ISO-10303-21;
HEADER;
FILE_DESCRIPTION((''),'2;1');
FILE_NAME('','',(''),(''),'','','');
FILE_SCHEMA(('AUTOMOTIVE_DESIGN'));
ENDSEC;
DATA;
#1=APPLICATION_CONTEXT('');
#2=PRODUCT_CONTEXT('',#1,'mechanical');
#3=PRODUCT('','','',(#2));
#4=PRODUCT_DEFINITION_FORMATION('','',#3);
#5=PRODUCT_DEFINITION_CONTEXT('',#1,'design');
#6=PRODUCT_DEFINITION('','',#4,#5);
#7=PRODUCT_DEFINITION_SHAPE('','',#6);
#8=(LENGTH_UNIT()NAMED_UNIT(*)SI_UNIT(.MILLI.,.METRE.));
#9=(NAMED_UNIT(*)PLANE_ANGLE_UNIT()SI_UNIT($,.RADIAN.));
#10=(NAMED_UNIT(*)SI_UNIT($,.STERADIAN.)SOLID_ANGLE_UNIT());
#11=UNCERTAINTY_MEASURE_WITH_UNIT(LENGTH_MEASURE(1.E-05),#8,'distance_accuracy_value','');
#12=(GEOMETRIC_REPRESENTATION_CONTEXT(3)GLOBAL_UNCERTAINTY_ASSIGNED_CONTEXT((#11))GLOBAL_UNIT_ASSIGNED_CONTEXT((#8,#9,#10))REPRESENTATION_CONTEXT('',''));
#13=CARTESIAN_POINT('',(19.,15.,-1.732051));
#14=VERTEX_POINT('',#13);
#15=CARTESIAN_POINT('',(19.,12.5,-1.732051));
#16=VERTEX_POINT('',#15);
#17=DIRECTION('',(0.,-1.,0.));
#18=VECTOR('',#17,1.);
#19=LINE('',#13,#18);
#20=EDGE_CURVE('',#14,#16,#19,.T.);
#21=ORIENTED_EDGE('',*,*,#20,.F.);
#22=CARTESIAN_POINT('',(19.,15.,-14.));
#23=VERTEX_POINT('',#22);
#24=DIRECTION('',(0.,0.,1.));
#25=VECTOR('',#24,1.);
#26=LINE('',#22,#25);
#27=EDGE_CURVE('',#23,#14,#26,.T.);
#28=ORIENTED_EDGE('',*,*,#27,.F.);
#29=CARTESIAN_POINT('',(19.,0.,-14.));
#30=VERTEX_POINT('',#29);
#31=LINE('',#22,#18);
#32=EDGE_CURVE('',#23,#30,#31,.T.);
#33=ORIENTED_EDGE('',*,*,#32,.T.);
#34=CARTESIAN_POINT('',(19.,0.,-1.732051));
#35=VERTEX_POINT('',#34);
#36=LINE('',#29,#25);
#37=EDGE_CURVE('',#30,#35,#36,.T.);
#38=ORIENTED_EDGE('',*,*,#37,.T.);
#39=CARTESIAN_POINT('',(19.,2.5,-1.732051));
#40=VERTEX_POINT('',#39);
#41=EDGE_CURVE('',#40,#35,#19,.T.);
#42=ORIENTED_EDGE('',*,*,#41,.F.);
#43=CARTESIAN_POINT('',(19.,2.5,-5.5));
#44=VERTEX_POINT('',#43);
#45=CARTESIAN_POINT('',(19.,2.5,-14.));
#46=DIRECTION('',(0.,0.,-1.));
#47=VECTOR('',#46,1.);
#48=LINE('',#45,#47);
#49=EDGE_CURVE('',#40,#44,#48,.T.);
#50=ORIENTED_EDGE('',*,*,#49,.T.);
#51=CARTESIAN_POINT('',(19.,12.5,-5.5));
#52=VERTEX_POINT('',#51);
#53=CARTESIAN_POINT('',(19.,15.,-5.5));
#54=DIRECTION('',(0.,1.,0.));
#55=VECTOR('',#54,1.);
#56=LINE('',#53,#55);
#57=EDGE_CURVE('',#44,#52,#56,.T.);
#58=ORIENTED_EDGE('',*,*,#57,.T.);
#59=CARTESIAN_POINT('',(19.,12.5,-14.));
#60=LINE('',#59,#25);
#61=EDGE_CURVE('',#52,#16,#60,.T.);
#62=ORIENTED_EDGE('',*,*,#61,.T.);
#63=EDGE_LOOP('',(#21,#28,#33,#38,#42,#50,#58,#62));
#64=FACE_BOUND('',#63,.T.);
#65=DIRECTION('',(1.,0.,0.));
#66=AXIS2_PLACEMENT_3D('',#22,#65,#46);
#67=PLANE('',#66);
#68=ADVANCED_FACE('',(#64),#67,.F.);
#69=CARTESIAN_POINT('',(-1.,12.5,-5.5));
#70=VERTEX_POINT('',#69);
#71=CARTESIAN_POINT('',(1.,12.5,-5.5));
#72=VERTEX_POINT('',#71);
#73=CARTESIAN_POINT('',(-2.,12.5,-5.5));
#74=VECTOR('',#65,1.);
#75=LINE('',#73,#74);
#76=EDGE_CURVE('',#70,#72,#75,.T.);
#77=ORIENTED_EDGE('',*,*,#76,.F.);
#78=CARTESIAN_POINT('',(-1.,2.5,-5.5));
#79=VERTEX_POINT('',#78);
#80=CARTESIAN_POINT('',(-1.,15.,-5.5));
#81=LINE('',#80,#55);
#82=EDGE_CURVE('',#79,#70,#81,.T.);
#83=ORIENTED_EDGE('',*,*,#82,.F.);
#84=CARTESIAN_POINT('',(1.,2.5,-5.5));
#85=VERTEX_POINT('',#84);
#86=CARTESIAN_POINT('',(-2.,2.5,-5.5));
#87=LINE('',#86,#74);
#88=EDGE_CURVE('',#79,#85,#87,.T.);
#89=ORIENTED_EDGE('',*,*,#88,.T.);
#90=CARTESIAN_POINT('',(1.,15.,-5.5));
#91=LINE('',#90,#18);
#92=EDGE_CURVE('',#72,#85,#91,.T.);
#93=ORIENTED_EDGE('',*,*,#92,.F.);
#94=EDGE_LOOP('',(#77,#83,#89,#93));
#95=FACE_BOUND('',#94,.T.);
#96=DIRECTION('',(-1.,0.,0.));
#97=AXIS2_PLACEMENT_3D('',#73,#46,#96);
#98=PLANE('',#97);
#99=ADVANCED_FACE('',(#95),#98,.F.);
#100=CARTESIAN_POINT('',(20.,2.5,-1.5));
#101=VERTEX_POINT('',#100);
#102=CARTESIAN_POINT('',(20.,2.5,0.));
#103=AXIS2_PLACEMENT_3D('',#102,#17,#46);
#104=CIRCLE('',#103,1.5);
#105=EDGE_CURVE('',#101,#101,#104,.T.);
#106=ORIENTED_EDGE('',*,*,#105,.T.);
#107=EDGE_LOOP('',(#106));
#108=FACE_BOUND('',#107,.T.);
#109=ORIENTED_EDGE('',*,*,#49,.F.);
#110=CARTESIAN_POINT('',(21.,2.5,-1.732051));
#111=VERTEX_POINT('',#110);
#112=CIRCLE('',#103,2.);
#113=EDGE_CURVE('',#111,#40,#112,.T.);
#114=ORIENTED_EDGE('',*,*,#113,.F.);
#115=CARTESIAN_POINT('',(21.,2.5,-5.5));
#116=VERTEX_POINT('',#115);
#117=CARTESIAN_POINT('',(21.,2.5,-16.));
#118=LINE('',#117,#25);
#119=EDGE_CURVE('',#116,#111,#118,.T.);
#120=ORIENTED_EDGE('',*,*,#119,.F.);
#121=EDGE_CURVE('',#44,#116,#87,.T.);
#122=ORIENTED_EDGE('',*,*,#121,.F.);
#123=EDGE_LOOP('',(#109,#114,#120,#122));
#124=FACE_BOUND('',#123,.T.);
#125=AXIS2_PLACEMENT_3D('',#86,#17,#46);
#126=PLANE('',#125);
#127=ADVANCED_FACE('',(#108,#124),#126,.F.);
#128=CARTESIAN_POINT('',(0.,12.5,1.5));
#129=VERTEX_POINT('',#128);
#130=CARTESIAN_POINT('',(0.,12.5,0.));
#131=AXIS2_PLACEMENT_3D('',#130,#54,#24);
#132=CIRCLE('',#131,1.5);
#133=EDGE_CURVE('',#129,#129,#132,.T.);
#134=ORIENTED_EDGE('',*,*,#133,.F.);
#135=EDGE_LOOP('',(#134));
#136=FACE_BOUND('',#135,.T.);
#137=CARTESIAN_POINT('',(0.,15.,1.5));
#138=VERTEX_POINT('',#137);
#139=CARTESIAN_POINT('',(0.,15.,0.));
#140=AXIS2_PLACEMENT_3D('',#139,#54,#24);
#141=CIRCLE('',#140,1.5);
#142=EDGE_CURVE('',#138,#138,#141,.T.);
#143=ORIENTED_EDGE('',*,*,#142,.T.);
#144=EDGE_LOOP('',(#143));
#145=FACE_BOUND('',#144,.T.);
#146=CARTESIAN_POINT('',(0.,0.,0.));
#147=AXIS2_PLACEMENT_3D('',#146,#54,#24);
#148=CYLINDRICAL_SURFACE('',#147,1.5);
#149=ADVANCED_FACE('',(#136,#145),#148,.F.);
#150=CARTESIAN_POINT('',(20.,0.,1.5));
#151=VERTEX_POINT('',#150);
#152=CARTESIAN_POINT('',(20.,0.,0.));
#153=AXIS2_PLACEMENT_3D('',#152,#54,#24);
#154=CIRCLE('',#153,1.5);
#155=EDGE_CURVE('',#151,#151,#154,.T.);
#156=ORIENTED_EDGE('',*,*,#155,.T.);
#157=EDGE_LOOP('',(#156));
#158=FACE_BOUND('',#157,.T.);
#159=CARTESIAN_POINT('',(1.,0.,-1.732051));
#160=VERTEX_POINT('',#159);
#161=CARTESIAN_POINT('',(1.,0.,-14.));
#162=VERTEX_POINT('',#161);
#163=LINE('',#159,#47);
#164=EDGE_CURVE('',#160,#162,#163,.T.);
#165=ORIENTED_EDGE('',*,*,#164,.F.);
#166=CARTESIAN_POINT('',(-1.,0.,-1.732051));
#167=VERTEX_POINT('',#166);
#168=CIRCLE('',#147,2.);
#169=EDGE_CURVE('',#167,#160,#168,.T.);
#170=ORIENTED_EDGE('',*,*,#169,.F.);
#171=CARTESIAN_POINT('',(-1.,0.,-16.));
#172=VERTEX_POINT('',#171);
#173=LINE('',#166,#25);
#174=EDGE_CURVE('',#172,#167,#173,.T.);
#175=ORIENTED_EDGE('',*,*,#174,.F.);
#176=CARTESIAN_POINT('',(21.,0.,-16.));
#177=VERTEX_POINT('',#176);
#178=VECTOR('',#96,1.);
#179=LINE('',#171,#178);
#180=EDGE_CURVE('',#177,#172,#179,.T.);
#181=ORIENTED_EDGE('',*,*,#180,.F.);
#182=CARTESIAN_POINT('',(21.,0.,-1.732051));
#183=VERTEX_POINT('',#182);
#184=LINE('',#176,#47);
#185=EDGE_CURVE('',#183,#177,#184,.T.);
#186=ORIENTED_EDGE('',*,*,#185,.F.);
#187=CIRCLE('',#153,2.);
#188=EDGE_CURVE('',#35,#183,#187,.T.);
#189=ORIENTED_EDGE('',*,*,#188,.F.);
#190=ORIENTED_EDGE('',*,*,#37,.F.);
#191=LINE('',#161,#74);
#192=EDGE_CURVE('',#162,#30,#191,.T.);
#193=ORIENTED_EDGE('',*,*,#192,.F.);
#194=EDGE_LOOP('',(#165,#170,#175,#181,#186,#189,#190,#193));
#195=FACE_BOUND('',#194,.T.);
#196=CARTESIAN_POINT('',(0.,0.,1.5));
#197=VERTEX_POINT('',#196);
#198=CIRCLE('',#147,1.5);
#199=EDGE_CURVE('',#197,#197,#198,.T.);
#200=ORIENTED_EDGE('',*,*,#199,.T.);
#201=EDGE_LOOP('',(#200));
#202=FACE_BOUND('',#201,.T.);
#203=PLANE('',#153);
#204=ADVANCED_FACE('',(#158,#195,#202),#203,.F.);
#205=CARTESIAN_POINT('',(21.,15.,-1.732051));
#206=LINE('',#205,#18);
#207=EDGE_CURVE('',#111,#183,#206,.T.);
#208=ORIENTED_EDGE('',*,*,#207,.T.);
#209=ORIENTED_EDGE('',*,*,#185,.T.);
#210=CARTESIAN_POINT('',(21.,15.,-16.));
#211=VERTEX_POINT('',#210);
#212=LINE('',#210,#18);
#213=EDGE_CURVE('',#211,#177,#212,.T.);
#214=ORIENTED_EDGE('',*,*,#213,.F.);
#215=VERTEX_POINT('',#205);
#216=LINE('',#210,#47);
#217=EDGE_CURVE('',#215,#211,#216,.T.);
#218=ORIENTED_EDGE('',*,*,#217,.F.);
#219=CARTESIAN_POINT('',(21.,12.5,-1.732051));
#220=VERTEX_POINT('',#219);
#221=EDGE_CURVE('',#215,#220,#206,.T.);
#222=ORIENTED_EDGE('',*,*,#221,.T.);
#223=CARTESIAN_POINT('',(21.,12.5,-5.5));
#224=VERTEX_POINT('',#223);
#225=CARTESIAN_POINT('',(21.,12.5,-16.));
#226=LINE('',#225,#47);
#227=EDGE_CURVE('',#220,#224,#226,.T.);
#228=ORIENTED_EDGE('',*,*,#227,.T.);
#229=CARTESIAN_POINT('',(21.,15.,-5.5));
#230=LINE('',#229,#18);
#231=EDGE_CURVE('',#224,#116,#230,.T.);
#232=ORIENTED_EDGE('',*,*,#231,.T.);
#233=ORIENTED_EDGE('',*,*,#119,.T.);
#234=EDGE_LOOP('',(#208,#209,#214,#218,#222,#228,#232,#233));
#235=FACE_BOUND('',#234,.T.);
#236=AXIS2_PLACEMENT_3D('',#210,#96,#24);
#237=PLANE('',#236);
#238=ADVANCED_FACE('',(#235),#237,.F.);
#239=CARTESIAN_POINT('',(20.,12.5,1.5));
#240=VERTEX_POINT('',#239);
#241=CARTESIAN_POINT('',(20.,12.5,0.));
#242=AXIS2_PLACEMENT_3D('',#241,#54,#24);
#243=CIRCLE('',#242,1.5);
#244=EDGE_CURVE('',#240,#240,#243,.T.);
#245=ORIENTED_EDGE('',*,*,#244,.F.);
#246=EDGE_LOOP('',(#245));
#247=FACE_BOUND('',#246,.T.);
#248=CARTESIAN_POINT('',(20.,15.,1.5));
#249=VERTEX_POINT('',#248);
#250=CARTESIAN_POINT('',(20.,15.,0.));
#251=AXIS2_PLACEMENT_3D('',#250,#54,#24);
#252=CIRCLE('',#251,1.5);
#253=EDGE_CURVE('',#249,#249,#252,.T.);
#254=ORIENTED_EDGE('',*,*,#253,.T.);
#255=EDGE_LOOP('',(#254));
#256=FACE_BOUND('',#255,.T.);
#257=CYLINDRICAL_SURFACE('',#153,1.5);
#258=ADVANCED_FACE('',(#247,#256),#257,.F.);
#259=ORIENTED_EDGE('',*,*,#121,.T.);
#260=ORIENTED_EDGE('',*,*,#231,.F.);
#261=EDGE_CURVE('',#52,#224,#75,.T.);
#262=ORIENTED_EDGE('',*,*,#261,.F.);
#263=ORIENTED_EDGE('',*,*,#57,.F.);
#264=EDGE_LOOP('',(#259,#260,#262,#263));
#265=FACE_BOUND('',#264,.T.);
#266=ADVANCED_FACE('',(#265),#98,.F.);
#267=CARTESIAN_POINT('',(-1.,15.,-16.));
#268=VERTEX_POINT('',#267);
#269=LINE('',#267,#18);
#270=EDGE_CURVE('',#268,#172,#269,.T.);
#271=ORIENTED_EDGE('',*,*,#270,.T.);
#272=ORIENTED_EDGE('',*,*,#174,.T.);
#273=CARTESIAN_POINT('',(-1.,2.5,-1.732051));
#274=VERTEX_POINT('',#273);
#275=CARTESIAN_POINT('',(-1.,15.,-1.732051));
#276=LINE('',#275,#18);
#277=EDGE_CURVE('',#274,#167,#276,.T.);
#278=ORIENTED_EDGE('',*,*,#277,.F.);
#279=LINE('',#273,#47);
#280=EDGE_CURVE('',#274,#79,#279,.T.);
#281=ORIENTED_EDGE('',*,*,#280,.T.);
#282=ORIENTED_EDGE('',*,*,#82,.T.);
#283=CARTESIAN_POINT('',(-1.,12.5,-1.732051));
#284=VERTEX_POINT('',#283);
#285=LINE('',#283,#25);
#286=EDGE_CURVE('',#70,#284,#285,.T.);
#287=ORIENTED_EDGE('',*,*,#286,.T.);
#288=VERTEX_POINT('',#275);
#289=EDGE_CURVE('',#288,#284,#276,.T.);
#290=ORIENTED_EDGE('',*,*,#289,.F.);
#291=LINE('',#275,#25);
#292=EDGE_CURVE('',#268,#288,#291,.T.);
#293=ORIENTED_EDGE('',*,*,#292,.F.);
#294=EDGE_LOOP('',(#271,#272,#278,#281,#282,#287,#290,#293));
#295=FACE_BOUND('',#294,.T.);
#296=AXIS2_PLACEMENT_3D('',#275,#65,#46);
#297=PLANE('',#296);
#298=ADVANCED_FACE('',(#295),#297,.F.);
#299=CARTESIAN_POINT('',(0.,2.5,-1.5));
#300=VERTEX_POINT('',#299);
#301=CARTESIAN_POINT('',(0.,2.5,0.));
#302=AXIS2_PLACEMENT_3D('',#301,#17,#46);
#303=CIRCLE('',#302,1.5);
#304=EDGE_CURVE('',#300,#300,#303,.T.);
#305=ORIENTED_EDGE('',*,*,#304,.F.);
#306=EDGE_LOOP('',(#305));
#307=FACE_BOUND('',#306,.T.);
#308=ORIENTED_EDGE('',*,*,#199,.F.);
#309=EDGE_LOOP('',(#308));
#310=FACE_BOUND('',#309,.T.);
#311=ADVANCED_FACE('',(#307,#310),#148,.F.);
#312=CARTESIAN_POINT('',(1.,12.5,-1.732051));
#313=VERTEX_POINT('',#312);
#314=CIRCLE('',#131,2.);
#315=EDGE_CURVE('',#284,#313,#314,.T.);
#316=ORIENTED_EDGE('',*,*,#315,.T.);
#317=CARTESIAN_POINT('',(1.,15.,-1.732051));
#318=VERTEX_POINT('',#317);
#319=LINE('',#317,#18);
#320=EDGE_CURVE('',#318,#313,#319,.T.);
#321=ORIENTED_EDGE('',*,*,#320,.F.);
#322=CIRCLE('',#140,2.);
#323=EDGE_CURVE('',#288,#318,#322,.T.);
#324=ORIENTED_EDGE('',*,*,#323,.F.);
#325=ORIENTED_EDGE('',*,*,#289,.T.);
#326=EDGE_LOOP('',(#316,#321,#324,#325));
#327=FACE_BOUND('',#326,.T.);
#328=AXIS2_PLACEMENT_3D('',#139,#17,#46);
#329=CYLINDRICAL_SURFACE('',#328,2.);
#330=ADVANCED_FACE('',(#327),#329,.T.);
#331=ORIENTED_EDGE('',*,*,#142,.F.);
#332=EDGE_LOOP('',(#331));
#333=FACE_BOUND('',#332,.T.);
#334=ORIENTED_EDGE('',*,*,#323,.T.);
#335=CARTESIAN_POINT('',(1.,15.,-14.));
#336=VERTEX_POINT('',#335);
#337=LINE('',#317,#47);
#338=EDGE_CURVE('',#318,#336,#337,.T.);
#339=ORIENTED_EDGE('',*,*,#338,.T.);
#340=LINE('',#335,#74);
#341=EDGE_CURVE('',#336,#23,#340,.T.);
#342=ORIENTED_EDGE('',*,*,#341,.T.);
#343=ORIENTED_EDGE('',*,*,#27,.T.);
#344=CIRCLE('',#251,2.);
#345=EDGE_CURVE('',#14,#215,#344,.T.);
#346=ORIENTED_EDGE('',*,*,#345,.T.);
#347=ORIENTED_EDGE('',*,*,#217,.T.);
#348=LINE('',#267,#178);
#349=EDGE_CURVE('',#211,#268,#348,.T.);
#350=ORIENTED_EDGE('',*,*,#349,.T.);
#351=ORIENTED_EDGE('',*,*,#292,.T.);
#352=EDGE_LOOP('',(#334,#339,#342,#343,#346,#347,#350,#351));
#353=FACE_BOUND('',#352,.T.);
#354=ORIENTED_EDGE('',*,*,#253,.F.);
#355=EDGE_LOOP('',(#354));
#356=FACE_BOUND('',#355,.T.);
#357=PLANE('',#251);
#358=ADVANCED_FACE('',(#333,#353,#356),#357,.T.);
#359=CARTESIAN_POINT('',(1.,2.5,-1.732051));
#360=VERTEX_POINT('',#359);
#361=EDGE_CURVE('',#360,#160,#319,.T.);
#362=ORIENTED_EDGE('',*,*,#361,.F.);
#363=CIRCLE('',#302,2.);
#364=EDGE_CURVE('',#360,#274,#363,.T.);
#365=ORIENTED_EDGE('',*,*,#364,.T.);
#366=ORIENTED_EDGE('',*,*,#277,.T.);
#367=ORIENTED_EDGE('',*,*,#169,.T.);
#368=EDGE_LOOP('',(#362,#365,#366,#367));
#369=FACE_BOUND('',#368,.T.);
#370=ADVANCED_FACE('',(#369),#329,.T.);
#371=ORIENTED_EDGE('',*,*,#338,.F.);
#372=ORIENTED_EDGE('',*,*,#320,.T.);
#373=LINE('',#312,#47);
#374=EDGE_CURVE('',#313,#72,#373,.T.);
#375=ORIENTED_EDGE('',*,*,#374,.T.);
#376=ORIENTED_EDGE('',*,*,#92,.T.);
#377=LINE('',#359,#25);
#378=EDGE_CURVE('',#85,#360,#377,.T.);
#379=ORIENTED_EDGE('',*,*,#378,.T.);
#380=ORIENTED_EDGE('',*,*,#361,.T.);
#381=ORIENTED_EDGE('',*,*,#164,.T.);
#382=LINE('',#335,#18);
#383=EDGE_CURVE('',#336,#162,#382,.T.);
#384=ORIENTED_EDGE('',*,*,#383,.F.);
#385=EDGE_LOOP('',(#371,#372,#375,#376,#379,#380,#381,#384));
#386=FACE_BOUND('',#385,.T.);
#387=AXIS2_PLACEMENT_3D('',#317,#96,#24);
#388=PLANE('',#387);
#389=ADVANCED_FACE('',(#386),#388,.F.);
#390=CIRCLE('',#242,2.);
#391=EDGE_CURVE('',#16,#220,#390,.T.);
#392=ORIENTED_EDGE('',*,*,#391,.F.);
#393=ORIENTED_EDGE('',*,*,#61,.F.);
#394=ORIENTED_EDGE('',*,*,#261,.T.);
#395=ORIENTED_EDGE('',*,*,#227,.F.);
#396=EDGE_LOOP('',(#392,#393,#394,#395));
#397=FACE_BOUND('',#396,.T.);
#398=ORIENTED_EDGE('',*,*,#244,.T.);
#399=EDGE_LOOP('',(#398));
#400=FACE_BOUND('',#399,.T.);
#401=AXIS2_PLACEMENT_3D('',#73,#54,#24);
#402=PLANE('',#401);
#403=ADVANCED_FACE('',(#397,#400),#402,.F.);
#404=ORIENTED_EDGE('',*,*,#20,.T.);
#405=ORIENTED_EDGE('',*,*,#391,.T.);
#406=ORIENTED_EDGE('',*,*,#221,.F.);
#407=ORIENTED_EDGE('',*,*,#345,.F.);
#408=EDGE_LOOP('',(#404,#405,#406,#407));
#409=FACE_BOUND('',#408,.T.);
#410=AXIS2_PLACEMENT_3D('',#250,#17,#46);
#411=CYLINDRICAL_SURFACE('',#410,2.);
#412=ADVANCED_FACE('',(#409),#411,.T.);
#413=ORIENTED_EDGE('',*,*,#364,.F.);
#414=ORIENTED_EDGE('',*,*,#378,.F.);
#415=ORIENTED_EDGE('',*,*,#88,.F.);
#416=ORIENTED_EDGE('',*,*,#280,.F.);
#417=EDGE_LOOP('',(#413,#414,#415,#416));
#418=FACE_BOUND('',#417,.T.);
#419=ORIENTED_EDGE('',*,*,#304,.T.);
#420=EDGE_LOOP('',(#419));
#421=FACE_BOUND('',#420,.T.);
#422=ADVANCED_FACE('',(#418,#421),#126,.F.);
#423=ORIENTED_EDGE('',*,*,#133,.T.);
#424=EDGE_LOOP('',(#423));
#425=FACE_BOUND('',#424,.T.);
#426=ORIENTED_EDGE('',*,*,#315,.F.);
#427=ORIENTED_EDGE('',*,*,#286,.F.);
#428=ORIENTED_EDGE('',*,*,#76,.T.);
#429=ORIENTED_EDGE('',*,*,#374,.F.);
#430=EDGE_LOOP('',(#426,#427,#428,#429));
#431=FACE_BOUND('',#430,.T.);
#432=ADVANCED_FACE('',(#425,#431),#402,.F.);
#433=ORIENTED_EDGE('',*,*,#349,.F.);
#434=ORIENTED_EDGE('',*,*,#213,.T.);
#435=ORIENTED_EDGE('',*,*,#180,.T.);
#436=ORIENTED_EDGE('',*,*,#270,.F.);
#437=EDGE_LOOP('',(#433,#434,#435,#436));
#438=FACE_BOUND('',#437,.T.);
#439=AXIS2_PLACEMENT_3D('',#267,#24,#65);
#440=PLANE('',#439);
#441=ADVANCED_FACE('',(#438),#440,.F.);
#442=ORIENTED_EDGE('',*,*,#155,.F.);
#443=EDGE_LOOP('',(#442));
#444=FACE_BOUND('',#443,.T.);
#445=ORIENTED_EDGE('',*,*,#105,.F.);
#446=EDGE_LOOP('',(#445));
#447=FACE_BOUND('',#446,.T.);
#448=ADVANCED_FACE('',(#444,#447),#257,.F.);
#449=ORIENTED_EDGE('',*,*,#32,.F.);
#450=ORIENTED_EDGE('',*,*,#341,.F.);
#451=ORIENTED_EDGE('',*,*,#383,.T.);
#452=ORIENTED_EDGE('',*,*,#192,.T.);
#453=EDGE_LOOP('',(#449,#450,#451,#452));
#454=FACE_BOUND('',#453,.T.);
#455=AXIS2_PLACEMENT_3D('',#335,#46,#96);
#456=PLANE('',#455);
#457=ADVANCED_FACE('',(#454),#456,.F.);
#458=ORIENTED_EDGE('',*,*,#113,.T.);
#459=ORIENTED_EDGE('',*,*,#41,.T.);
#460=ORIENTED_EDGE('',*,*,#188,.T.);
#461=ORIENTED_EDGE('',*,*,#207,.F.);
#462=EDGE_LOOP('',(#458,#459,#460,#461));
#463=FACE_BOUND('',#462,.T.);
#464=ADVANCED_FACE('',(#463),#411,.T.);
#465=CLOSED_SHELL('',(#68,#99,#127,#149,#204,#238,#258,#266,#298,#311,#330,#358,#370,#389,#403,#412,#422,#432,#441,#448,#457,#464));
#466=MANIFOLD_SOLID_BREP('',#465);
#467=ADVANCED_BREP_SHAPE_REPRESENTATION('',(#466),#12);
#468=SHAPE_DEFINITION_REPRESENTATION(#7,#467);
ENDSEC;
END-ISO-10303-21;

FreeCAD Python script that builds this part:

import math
import FreeCAD as App
import Part
import Sketcher
from FreeCAD import Vector

doc = App.newDocument("Part")
body = doc.addObject("PartDesign::Body", "Body")

sketch1 = doc.addObject("Sketcher::SketchObject", "Sketch")
body.addObject(sketch1)
sketch1.AttachmentSupport = (doc.XZ_Plane, [""])
sketch1.MapMode = "FlatFace"
sketch1.addGeometry([
    Part.LineSegment(Vector(1, -1.7, 0), Vector(1, -14, 0)),
    Part.LineSegment(Vector(1, -14, 0), Vector(19, -14, 0)),
    Part.LineSegment(Vector(19, -14, 0), Vector(19, -1.7, 0)),
    Part.ArcOfCircle(Part.Circle(Vector(20, 0, 0), Vector(0, 0, 1), 2), math.radians(-60), math.radians(240)),
    Part.LineSegment(Vector(21, -1.7, 0), Vector(21, -16, 0)),
    Part.LineSegment(Vector(21, -16, 0), Vector(-1, -16, 0)),
    Part.LineSegment(Vector(-1, -16, 0), Vector(-1, -1.7, 0)),
    Part.ArcOfCircle(Part.Circle(Vector(0, 0, 0), Vector(0, 0, 1), 2), math.radians(-60), math.radians(240)),
], False)
sketch1.addConstraint([
    Sketcher.Constraint("Coincident", 0, 2, 1, 1),
    Sketcher.Constraint("Coincident", 1, 2, 2, 1),
    Sketcher.Constraint("Coincident", 2, 2, 3, 2),
    Sketcher.Constraint("Coincident", 3, 1, 4, 1),
    Sketcher.Constraint("Coincident", 4, 2, 5, 1),
    Sketcher.Constraint("Coincident", 5, 2, 6, 1),
    Sketcher.Constraint("Coincident", 6, 2, 7, 2),
    Sketcher.Constraint("Coincident", 7, 1, 0, 1),
    Sketcher.Constraint("Vertical", 0),
    Sketcher.Constraint("Horizontal", 1),
    Sketcher.Constraint("Vertical", 2),
    Sketcher.Constraint("Vertical", 4),
    Sketcher.Constraint("Horizontal", 5),
    Sketcher.Constraint("Vertical", 6),
    Sketcher.Constraint("Coincident", 7, 3, -1, 1),
    Sketcher.Constraint("Equal", 3, 7),
    Sketcher.Constraint("PointOnObject", 3, 3, -1),
    Sketcher.Constraint("Horizontal", 2, 2, 3, 1),
    Sketcher.Constraint("Horizontal", 3, 1, 6, 2),
    Sketcher.Constraint("Horizontal", 6, 2, 7, 1),
    Sketcher.Constraint("Radius", 3, 2.0),
    Sketcher.Constraint("DistanceX", 1, 1, 1, 2, 18.0),
    Sketcher.Constraint("DistanceX", 5, 2, 5, 1, 22.0),
    Sketcher.Constraint("DistanceY", 0, 2, -1, 1, 14.0),
    Sketcher.Constraint("DistanceY", 4, 2, -1, 1, 16.0),
])
pad1 = doc.addObject("PartDesign::Pad", "Pad")
body.addObject(pad1)
pad1.Profile = sketch1
pad1.Length = 15
pad1.Reversed = True

sketch2 = doc.addObject("Sketcher::SketchObject", "Sketch001")
body.addObject(sketch2)
sketch2.AttachmentSupport = (doc.YZ_Plane, [""])
sketch2.MapMode = "FlatFace"
sketch2.addGeometry([
    Part.LineSegment(Vector(12, 2, 0), Vector(2, 2, 0)),
    Part.LineSegment(Vector(2, 2, 0), Vector(2, -6, 0)),
    Part.LineSegment(Vector(2, -6, 0), Vector(12, -6, 0)),
    Part.LineSegment(Vector(12, -6, 0), Vector(12, 2, 0)),
], False)
sketch2.addConstraint([
    Sketcher.Constraint("Coincident", 0, 2, 1, 1),
    Sketcher.Constraint("Coincident", 1, 2, 2, 1),
    Sketcher.Constraint("Coincident", 2, 2, 3, 1),
    Sketcher.Constraint("Coincident", 3, 2, 0, 1),
    Sketcher.Constraint("Horizontal", 0),
    Sketcher.Constraint("Vertical", 1),
    Sketcher.Constraint("Horizontal", 2),
    Sketcher.Constraint("Vertical", 3),
    Sketcher.Constraint("DistanceX", 0, 2, 0, 1, 10.0),
    Sketcher.Constraint("DistanceY", 1, 2, 1, 1, 7.5),
    Sketcher.Constraint("DistanceY", -1, 1, 0, 2, 2.0),
    Sketcher.Constraint("DistanceX", -1, 1, 0, 2, 2.5),
])
pocket1 = doc.addObject("PartDesign::Pocket", "Pocket")
body.addObject(pocket1)
pocket1.Profile = sketch2
pocket1.Type = "ThroughAll"
pocket1.Midplane = True

sketch3 = doc.addObject("Sketcher::SketchObject", "Sketch002")
body.addObject(sketch3)
sketch3.AttachmentSupport = (doc.XZ_Plane, [""])
sketch3.MapMode = "FlatFace"
sketch3.AttachmentOffset = App.Placement(Vector(0, 0, -15), App.Rotation())
sketch3.addGeometry([
    Part.Circle(Vector(0, 0, 0), Vector(0, 0, 1), 1.5),
    Part.Circle(Vector(20, 0, 0), Vector(0, 0, 1), 1.5),
], False)
sketch3.addConstraint([
    Sketcher.Constraint("Coincident", 0, 3, -1, 1),
    Sketcher.Constraint("Equal", 0, 1),
    Sketcher.Constraint("PointOnObject", 1, 3, -1),
    Sketcher.Constraint("Diameter", 0, 3.0),
    Sketcher.Constraint("DistanceX", -1, 1, 1, 3, 20.0),
])
pocket2 = doc.addObject("PartDesign::Pocket", "Pocket001")
body.addObject(pocket2)
pocket2.Profile = sketch3
pocket2.Type = "ThroughAll"
pocket2.Reversed = True

doc.recompute()
